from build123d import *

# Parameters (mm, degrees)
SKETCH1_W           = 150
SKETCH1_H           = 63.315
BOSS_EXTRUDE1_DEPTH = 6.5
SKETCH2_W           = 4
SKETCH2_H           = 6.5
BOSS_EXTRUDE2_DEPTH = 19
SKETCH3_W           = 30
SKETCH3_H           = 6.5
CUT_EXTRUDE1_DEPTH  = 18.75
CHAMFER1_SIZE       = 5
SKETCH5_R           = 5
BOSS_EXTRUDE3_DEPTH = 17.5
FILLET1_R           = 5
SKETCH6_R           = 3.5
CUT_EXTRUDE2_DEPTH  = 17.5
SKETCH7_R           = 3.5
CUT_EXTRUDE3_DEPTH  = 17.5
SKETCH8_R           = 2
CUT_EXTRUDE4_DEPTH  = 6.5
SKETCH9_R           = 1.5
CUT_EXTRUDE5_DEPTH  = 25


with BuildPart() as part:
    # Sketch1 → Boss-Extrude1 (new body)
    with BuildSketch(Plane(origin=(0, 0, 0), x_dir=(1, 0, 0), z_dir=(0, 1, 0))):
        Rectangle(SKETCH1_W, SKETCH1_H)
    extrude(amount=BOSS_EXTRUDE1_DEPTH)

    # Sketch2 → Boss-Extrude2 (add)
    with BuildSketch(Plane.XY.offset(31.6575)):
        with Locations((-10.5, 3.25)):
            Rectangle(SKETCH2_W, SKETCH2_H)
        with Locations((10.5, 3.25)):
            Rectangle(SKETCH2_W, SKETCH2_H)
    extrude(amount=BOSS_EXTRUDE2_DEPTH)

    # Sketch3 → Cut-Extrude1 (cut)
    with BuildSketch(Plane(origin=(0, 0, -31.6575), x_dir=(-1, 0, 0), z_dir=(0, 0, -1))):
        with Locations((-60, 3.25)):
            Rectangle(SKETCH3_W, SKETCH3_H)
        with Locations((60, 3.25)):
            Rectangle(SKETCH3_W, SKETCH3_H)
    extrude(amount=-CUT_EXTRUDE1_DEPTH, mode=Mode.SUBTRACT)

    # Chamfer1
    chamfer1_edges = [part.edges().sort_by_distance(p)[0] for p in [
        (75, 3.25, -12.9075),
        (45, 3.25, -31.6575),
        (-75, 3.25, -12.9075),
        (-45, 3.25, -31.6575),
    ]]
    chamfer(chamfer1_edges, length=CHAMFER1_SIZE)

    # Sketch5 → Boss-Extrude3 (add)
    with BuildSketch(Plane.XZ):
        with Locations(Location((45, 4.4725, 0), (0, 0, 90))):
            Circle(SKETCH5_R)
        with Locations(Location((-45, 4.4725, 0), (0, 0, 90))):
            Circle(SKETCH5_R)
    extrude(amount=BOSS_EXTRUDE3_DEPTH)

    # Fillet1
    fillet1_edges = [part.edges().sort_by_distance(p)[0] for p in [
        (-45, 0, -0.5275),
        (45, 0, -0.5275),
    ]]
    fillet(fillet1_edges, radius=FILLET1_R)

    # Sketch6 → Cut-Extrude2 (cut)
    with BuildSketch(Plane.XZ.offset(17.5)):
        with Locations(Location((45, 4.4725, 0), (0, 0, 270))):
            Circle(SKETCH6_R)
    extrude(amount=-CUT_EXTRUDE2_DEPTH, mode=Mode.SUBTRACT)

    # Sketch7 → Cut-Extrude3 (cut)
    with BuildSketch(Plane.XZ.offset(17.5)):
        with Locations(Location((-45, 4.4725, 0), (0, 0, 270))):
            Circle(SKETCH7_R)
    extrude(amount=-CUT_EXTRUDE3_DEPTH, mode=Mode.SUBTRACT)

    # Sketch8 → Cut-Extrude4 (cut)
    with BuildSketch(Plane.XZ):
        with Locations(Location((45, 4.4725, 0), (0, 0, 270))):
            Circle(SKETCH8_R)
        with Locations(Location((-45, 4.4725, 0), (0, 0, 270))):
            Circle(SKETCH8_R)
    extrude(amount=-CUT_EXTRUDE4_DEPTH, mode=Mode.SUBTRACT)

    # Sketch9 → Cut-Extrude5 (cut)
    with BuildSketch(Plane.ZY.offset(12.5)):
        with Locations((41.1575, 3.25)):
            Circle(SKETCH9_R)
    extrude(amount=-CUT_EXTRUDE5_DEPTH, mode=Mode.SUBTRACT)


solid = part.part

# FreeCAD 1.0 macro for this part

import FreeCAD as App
import Part
import Sketcher


def edges_at(feature, points):
    """Names of the edges that pass closest to the given points."""
    edges = feature.Shape.Edges
    near = lambda p: min(range(len(edges)), key=lambda i: edges[i].distToShape(Part.Vertex(*p))[0])
    return sorted({f"Edge{near(p) + 1}" for p in points})

doc = App.newDocument("Part")
body = doc.addObject("PartDesign::Body", "Body")

# Sketch on XZ plane
sketch1 = body.newObject("Sketcher::SketchObject", "Sketch")
sketch1.AttachmentSupport = (doc.getObject("XZ_Plane"), [""])
sketch1.MapMode = "FlatFace"
sketch1.addGeometry([
    Part.LineSegment(App.Vector(-75, -32, 0), App.Vector(-75, 32, 0)),
    Part.LineSegment(App.Vector(-75, 32, 0), App.Vector(75, 32, 0)),
    Part.LineSegment(App.Vector(75, 32, 0), App.Vector(75, -32, 0)),
    Part.LineSegment(App.Vector(75, -32, 0), App.Vector(-75, -32, 0)),
], False)
sketch1.addConstraint([
    Sketcher.Constraint("Coincident", 0, 2, 1, 1),
    Sketcher.Constraint("Coincident", 1, 2, 2, 1),
    Sketcher.Constraint("Coincident", 2, 2, 3, 1),
    Sketcher.Constraint("Coincident", 3, 2, 0, 1),
    Sketcher.Constraint("Vertical", 0),
    Sketcher.Constraint("Horizontal", 1),
    Sketcher.Constraint("Vertical", 2),
    Sketcher.Constraint("Horizontal", 3),
    Sketcher.Constraint("Symmetric", 0, 2, 2, 2, -1, 1),
    Sketcher.Constraint("DistanceX", 1, 1, 1, 2, 150.0),
    Sketcher.Constraint("DistanceY", 0, 1, 0, 2, 63.315),
])
pad1 = body.newObject("PartDesign::Pad", "Pad")
pad1.Profile = sketch1
pad1.Length = 6.5
pad1.Reversed = True

# Sketch on XY plane
sketch2 = body.newObject("Sketcher::SketchObject", "Sketch001")
sketch2.AttachmentSupport = (doc.getObject("XY_Plane"), [""])
sketch2.MapMode = "FlatFace"
sketch2.AttachmentOffset = App.Placement(App.Vector(0, 0, 31.6575), App.Rotation())
sketch2.addGeometry([
    Part.LineSegment(App.Vector(-12.5, 6.5, 0), App.Vector(-12.5, 0, 0)),  # 0
    Part.LineSegment(App.Vector(-12.5, 0, 0), App.Vector(-8.5, 0, 0)),  # 1
    Part.LineSegment(App.Vector(-8.5, 0, 0), App.Vector(-8.5, 6.5, 0)),  # 2
    Part.LineSegment(App.Vector(-8.5, 6.5, 0), App.Vector(-12.5, 6.5, 0)),  # 3
    Part.LineSegment(App.Vector(8.5, 6.5, 0), App.Vector(8.5, 0, 0)),  # 4
    Part.LineSegment(App.Vector(8.5, 0, 0), App.Vector(12.5, 0, 0)),  # 5
    Part.LineSegment(App.Vector(12.5, 0, 0), App.Vector(12.5, 6.5, 0)),  # 6
    Part.LineSegment(App.Vector(12.5, 6.5, 0), App.Vector(8.5, 6.5, 0)),  # 7
], False)
sketch2.addConstraint([
    Sketcher.Constraint("Coincident", 0, 2, 1, 1),
    Sketcher.Constraint("Coincident", 1, 2, 2, 1),
    Sketcher.Constraint("Coincident", 2, 2, 3, 1),
    Sketcher.Constraint("Coincident", 3, 2, 0, 1),
    Sketcher.Constraint("Coincident", 4, 2, 5, 1),
    Sketcher.Constraint("Coincident", 5, 2, 6, 1),
    Sketcher.Constraint("Coincident", 6, 2, 7, 1),
    Sketcher.Constraint("Coincident", 7, 2, 4, 1),
    Sketcher.Constraint("Vertical", 0),
    Sketcher.Constraint("Horizontal", 1),
    Sketcher.Constraint("Vertical", 2),
    Sketcher.Constraint("Horizontal", 3),
    Sketcher.Constraint("Vertical", 4),
    Sketcher.Constraint("Horizontal", 5),
    Sketcher.Constraint("Vertical", 6),
    Sketcher.Constraint("Horizontal", 7),
    Sketcher.Constraint("Symmetric", 1, 2, 4, 2, -1, 1),
    Sketcher.Constraint("Symmetric", 0, 2, 5, 2, -2),
    Sketcher.Constraint("Horizontal", 3, 2, 6, 2),
    Sketcher.Constraint("DistanceX", 1, 1, 1, 2, 4.0),
    Sketcher.Constraint("DistanceY", 0, 2, 0, 1, 6.5),
    Sketcher.Constraint("DistanceX", 1, 2, 4, 2, 17.0),
])
pad2 = body.newObject("PartDesign::Pad", "Pad001")
pad2.Profile = sketch2
pad2.Length = 19

# Sketch on XY plane
sketch3 = body.newObject("Sketcher::SketchObject", "Sketch002")
sketch3.AttachmentSupport = (doc.getObject("XY_Plane"), [""])
sketch3.MapMode = "FlatFace"
sketch3.AttachmentOffset = App.Placement(App.Vector(0, 0, -31.6575), App.Rotation())
sketch3.addGeometry([
    Part.LineSegment(App.Vector(75, 6, 0), App.Vector(75, 0, 0)),  # 0
    Part.LineSegment(App.Vector(75, 0, 0), App.Vector(45, 0, 0)),  # 1
    Part.LineSegment(App.Vector(45, 0, 0), App.Vector(45, 6, 0)),  # 2
    Part.LineSegment(App.Vector(45, 6, 0), App.Vector(75, 6, 0)),  # 3
    Part.LineSegment(App.Vector(-45, 6, 0), App.Vector(-45, 0, 0)),  # 4
    Part.LineSegment(App.Vector(-45, 0, 0), App.Vector(-75, 0, 0)),  # 5
    Part.LineSegment(App.Vector(-75, 0, 0), App.Vector(-75, 6, 0)),  # 6
    Part.LineSegment(App.Vector(-75, 6, 0), App.Vector(-45, 6, 0)),  # 7
], False)
sketch3.addConstraint([
    Sketcher.Constraint("Coincident", 0, 2, 1, 1),
    Sketcher.Constraint("Coincident", 1, 2, 2, 1),
    Sketcher.Constraint("Coincident", 2, 2, 3, 1),
    Sketcher.Constraint("Coincident", 3, 2, 0, 1),
    Sketcher.Constraint("Coincident", 4, 2, 5, 1),
    Sketcher.Constraint("Coincident", 5, 2, 6, 1),
    Sketcher.Constraint("Coincident", 6, 2, 7, 1),
    Sketcher.Constraint("Coincident", 7, 2, 4, 1),
    Sketcher.Constraint("Vertical", 0),
    Sketcher.Constraint("Horizontal", 1),
    Sketcher.Constraint("Vertical", 2),
    Sketcher.Constraint("Horizontal", 3),
    Sketcher.Constraint("Vertical", 4),
    Sketcher.Constraint("Horizontal", 5),
    Sketcher.Constraint("Vertical", 6),
    Sketcher.Constraint("Horizontal", 7),
    Sketcher.Constraint("Symmetric", 1, 2, 4, 2, -1, 1),
    Sketcher.Constraint("Symmetric", 0, 2, 5, 2, -2),
    Sketcher.Constraint("Horizontal", 3, 2, 6, 2),
    Sketcher.Constraint("DistanceX", 1, 2, 1, 1, 30.0),
    Sketcher.Constraint("DistanceY", 0, 2, 0, 1, 6.5),
    Sketcher.Constraint("DistanceX", -1, 1, 0, 2, 75.0),
])
pocket1 = body.newObject("PartDesign::Pocket", "Pocket")
pocket1.Profile = sketch3
pocket1.Length = 18.75
pocket1.Reversed = True
doc.recompute()

chamfer = body.newObject("PartDesign::Chamfer", "Chamfer")
chamfer.Base = (pocket1, edges_at(pocket1, [
    (75, 3.25, -12.908),
    (45, 3.25, -31.657),
    (-75, 3.25, -12.908),
    (-45, 3.25, -31.657),
]))
chamfer.Size = 5

# Sketch on XZ plane
sketch4 = body.newObject("Sketcher::SketchObject", "Sketch003")
sketch4.AttachmentSupport = (doc.getObject("XZ_Plane"), [""])
sketch4.MapMode = "FlatFace"
sketch4.addGeometry([
    Part.Circle(App.Vector(45, 4, 0), App.Vector(0, 0, 1), 5),
    Part.Circle(App.Vector(-45, 4, 0), App.Vector(0, 0, 1), 5),
], False)
sketch4.addConstraint([
    Sketcher.Constraint("Equal", 0, 1),
    Sketcher.Constraint("Symmetric", 0, 3, 1, 3, -2),
    Sketcher.Constraint("Diameter", 0, 10.0),
    Sketcher.Constraint("DistanceX", -1, 1, 0, 3, 45.0),
    Sketcher.Constraint("DistanceY", -1, 1, 0, 3, 4.4725),
])
pad3 = body.newObject("PartDesign::Pad", "Pad002")
pad3.Profile = sketch4
pad3.Length = 17.5
doc.recompute()

fillet = body.newObject("PartDesign::Fillet", "Fillet")
fillet.Base = (pad3, edges_at(pad3, [(-45, 0, -0.527), (45, 0, -0.527)]))
fillet.Radius = 5

# Sketch on XZ plane
sketch5 = body.newObject("Sketcher::SketchObject", "Sketch004")
sketch5.AttachmentSupport = (doc.getObject("XZ_Plane"), [""])
sketch5.MapMode = "FlatFace"
sketch5.AttachmentOffset = App.Placement(App.Vector(0, 0, 17.5), App.Rotation())
sketch5.addGeometry(Part.Circle(App.Vector(45, 4.5, 0), App.Vector(0, 0, 1), 3.5), False)
sketch5.addConstraint([
    Sketcher.Constraint("Diameter", 0, 7.0),
    Sketcher.Constraint("DistanceX", -1, 1, 0, 3, 45.0),
    Sketcher.Constraint("DistanceY", -1, 1, 0, 3, 4.4725),
])
pocket2 = body.newObject("PartDesign::Pocket", "Pocket001")
pocket2.Profile = sketch5
pocket2.Length = 17.5

# Sketch on XZ plane
sketch6 = body.newObject("Sketcher::SketchObject", "Sketch005")
sketch6.AttachmentSupport = (doc.getObject("XZ_Plane"), [""])
sketch6.MapMode = "FlatFace"
sketch6.AttachmentOffset = App.Placement(App.Vector(0, 0, 17.5), App.Rotation())
sketch6.addGeometry(Part.Circle(App.Vector(-45, 4.5, 0), App.Vector(0, 0, 1), 3.5), False)
sketch6.addConstraint([
    Sketcher.Constraint("Diameter", 0, 7.0),
    Sketcher.Constraint("DistanceX", 0, 3, -1, 1, 45.0),
    Sketcher.Constraint("DistanceY", -1, 1, 0, 3, 4.4725),
])
pocket3 = body.newObject("PartDesign::Pocket", "Pocket002")
pocket3.Profile = sketch6
pocket3.Length = 17.5

# Sketch on XZ plane
sketch7 = body.newObject("Sketcher::SketchObject", "Sketch006")
sketch7.AttachmentSupport = (doc.getObject("XZ_Plane"), [""])
sketch7.MapMode = "FlatFace"
sketch7.addGeometry([
    Part.Circle(App.Vector(45, 4.5, 0), App.Vector(0, 0, 1), 2),
    Part.Circle(App.Vector(-45, 4.5, 0), App.Vector(0, 0, 1), 2),
], False)
sketch7.addConstraint([
    Sketcher.Constraint("Equal", 0, 1),
    Sketcher.Constraint("Symmetric", 0, 3, 1, 3, -2),
    Sketcher.Constraint("Diameter", 0, 4.0),
    Sketcher.Constraint("DistanceX", -1, 1, 0, 3, 45.0),
    Sketcher.Constraint("DistanceY", -1, 1, 0, 3, 4.4725),
])
pocket4 = body.newObject("PartDesign::Pocket", "Pocket003")
pocket4.Profile = sketch7
pocket4.Length = 6.5

# Sketch on YZ plane
sketch8 = body.newObject("Sketcher::SketchObject", "Sketch007")
sketch8.AttachmentSupport = (doc.getObject("YZ_Plane"), [""])
sketch8.MapMode = "FlatFace"
sketch8.AttachmentOffset = App.Placement(App.Vector(0, 0, -12.5), App.Rotation())
sketch8.addGeometry(Part.Circle(App.Vector(3.2, 41.2, 0), App.Vector(0, 0, 1), 1.5), False)
sketch8.addConstraint([
    Sketcher.Constraint("Diameter", 0, 3.0),
    Sketcher.Constraint("DistanceX", -1, 1, 0, 3, 3.25),
    Sketcher.Constraint("DistanceY", -1, 1, 0, 3, 41.1575),
])
pocket5 = body.newObject("PartDesign::Pocket", "Pocket004")
pocket5.Profile = sketch8
pocket5.Length = 25
pocket5.Reversed = True

doc.recompute()
